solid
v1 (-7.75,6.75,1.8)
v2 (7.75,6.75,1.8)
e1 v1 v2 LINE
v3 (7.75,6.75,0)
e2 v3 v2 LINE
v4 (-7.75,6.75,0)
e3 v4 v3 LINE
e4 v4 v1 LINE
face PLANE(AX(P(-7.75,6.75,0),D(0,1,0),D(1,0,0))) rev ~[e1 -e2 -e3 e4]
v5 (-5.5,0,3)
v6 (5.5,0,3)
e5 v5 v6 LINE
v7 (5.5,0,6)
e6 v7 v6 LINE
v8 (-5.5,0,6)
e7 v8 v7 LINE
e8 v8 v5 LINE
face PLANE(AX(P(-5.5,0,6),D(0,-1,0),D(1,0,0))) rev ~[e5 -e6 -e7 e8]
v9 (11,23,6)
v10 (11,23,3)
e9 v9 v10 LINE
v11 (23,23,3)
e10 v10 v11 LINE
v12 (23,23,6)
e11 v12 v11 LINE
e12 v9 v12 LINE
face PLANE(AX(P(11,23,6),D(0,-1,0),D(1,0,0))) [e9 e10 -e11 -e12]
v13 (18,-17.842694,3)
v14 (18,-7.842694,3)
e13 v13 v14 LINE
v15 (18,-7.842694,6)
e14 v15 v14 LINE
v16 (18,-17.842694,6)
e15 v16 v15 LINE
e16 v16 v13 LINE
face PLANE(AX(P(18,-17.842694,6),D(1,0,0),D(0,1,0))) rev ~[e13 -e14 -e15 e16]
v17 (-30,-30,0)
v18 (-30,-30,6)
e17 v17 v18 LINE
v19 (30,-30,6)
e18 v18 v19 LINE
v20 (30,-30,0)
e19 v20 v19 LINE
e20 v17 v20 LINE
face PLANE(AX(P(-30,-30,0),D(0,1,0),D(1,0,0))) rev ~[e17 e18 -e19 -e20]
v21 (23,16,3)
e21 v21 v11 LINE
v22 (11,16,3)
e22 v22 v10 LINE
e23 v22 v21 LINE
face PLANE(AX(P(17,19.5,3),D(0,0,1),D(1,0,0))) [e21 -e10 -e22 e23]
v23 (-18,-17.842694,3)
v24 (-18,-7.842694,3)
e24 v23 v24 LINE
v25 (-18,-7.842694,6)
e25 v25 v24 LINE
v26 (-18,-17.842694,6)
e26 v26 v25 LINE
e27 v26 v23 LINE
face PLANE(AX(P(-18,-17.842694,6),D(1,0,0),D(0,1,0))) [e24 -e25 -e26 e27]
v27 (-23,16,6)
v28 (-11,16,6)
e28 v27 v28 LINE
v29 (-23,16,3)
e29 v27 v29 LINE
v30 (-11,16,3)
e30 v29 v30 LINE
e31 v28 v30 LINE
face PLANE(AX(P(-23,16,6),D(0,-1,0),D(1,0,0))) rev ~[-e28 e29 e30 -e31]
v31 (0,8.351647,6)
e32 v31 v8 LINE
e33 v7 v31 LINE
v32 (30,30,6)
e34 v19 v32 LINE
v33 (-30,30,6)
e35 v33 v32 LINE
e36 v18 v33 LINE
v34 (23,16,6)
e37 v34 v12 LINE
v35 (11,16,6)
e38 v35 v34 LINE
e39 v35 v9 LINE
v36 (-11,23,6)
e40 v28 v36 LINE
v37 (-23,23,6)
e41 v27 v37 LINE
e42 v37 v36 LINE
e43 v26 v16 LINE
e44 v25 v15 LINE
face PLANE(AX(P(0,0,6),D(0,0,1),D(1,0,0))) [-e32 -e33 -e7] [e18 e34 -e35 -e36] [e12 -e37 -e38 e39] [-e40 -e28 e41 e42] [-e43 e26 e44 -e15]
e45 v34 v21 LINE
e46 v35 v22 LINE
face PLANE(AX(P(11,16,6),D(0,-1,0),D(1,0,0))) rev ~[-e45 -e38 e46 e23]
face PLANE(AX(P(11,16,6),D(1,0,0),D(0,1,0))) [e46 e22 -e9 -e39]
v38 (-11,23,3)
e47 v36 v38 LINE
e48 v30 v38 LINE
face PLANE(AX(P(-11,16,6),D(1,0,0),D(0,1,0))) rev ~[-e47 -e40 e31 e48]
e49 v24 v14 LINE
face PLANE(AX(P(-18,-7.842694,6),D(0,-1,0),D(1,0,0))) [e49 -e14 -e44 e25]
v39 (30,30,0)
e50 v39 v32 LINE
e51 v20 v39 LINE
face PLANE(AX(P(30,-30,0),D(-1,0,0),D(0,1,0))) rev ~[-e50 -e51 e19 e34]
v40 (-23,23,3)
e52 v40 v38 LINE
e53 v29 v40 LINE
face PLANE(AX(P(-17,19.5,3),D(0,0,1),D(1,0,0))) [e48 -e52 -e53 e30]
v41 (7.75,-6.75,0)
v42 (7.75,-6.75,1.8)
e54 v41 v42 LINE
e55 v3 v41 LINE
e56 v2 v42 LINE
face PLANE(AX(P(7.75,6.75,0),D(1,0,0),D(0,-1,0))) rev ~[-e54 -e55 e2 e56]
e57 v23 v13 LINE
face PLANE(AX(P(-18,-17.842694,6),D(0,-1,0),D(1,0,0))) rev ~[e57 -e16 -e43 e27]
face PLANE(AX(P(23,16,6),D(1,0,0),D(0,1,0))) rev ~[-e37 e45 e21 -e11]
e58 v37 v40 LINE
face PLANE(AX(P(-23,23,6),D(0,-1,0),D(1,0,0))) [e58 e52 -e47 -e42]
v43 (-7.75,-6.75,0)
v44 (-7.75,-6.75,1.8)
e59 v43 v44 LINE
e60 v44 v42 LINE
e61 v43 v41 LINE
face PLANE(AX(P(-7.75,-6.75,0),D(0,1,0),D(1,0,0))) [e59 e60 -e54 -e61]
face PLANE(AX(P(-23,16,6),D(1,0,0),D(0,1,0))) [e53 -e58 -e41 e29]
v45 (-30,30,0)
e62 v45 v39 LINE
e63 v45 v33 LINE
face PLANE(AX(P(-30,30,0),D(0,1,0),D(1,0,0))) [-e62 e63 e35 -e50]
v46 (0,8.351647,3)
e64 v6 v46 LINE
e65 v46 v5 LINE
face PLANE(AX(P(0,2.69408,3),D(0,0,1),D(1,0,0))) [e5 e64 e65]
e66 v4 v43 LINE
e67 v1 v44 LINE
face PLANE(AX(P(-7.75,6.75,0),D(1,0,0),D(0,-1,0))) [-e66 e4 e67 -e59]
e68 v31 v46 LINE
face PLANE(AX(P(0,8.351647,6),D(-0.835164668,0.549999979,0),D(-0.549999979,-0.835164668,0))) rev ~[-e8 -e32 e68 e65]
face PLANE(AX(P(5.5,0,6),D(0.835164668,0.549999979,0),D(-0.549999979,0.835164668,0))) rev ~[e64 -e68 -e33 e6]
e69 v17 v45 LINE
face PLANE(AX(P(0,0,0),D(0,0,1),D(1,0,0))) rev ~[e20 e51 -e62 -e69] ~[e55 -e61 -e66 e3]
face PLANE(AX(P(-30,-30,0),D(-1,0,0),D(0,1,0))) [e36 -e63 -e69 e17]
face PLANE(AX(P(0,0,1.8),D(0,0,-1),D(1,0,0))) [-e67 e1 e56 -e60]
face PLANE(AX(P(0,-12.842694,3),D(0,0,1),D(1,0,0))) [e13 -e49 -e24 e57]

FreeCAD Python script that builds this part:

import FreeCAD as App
import Part
import Sketcher

doc = App.newDocument("Part")
params = doc.addObject("Spreadsheet::Sheet", "Params")
for row, (alias, value) in enumerate([
    ("sketch1_width", "60 mm"),
    ("pad1_length", "6 mm"),
    ("sketch2_width", "12 mm"),
    ("sketch2_width2", "36 mm"),
    ("sketch2_width3", "11 mm"),
    ("sketch2_height", "7 mm"),
    ("sketch2_height2", "10 mm"),
    ("pocket1_length", "3 mm"),
    ("sketch3_width", "15.5 mm"),
    ("sketch3_height", "13.5 mm"),
    ("pocket2_length", "1.8 mm"),
], start=1):
    params.set(f"A{row}", alias)
    params.set(f"B{row}", "=" + value)
    params.setAlias(f"B{row}", alias)

body = doc.addObject("PartDesign::Body", "Body")

sketch1 = body.newObject("Sketcher::SketchObject", "Sketch")
sketch1.AttachmentSupport = (doc.getObject("XY_Plane"), [""])
sketch1.MapMode = "FlatFace"
sketch1.addGeometry([
    Part.LineSegment(App.Vector(-30, 30, 0), App.Vector(-30, -30, 0)),
    Part.LineSegment(App.Vector(-30, -30, 0), App.Vector(30, -30, 0)),
    Part.LineSegment(App.Vector(30, -30, 0), App.Vector(30, 30, 0)),
    Part.LineSegment(App.Vector(30, 30, 0), App.Vector(-30, 30, 0)),
], False)
sketch1.addConstraint([
    Sketcher.Constraint("Coincident", 0, 2, 1, 1),
    Sketcher.Constraint("Coincident", 1, 2, 2, 1),
    Sketcher.Constraint("Coincident", 2, 2, 3, 1),
    Sketcher.Constraint("Coincident", 3, 2, 0, 1),
    Sketcher.Constraint("Vertical", 0),
    Sketcher.Constraint("Horizontal", 1),
    Sketcher.Constraint("Vertical", 2),
    Sketcher.Constraint("Horizontal", 3),
    Sketcher.Constraint("Symmetric", 0, 2, 2, 2, -1, 1),
    Sketcher.Constraint("Equal", 3, 0),
    Sketcher.Constraint("DistanceX", 1, 1, 1, 2, 60.0),
])
sketch1.setExpression("Constraints[10]", "Params.sketch1_width")
pad1 = body.newObject("PartDesign::Pad", "Pad")
pad1.Profile = sketch1
pad1.setExpression("Length", "Params.pad1_length")

sketch2 = body.newObject("Sketcher::SketchObject", "Sketch001")
sketch2.AttachmentSupport = (doc.getObject("XY_Plane"), [""])
sketch2.MapMode = "FlatFace"
sketch2.AttachmentOffset = App.Placement(App.Vector(0, 0, 6), App.Rotation())
sketch2.addGeometry([
    Part.LineSegment(App.Vector(-23, 23, 0), App.Vector(-23, 16, 0)),
    Part.LineSegment(App.Vector(-23, 16, 0), App.Vector(-11, 16, 0)),
    Part.LineSegment(App.Vector(-11, 16, 0), App.Vector(-11, 23, 0)),
    Part.LineSegment(App.Vector(-11, 23, 0), App.Vector(-23, 23, 0)),
    Part.LineSegment(App.Vector(11, 23, 0), App.Vector(11, 16, 0)),
    Part.LineSegment(App.Vector(11, 16, 0), App.Vector(23, 16, 0)),
    Part.LineSegment(App.Vector(23, 16, 0), App.Vector(23, 23, 0)),
    Part.LineSegment(App.Vector(23, 23, 0), App.Vector(11, 23, 0)),
    Part.LineSegment(App.Vector(-18, -7.842694, 0), App.Vector(-18, -17.842694, 0)),
    Part.LineSegment(App.Vector(-18, -17.842694, 0), App.Vector(18, -17.842694, 0)),
    Part.LineSegment(App.Vector(18, -17.842694, 0), App.Vector(18, -7.842694, 0)),
    Part.LineSegment(App.Vector(18, -7.842694, 0), App.Vector(-18, -7.842694, 0)),
    Part.LineSegment(App.Vector(5.5, 0, 0), App.Vector(0, 8.351647, 0)),
    Part.LineSegment(App.Vector(0, 8.351647, 0), App.Vector(-5.5, 0, 0)),
    Part.LineSegment(App.Vector(-5.5, 0, 0), App.Vector(5.5, 0, 0)),
], False)
sketch2.addConstraint([
    Sketcher.Constraint("Coincident", 0, 2, 1, 1),
    Sketcher.Constraint("Coincident", 1, 2, 2, 1),
    Sketcher.Constraint("Coincident", 2, 2, 3, 1),
    Sketcher.Constraint("Coincident", 3, 2, 0, 1),
    Sketcher.Constraint("Coincident", 4, 2, 5, 1),
    Sketcher.Constraint("Coincident", 5, 2, 6, 1),
    Sketcher.Constraint("Coincident", 6, 2, 7, 1),
    Sketcher.Constraint("Coincident", 7, 2, 4, 1),
    Sketcher.Constraint("Coincident", 8, 2, 9, 1),
    Sketcher.Constraint("Coincident", 9, 2, 10, 1),
    Sketcher.Constraint("Coincident", 10, 2, 11, 1),
    Sketcher.Constraint("Coincident", 11, 2, 8, 1),
    Sketcher.Constraint("Coincident", 12, 2, 13, 1),
    Sketcher.Constraint("Coincident", 13, 2, 14, 1),
    Sketcher.Constraint("Coincident", 14, 2, 12, 1),
    Sketcher.Constraint("Vertical", 0),
    Sketcher.Constraint("Horizontal", 1),
    Sketcher.Constraint("Vertical", 2),
    Sketcher.Constraint("Horizontal", 3),
    Sketcher.Constraint("Vertical", 4),
    Sketcher.Constraint("Horizontal", 5),
    Sketcher.Constraint("Vertical", 6),
    Sketcher.Constraint("Horizontal", 7),
    Sketcher.Constraint("Vertical", 8),
    Sketcher.Constraint("Horizontal", 9),
    Sketcher.Constraint("Vertical", 10),
    Sketcher.Constraint("Horizontal", 11),
    Sketcher.Constraint("Horizontal", 14),
    Sketcher.Constraint("Symmetric", 13, 2, 14, 2, -1, 1),
    Sketcher.Constraint("Symmetric", 1, 2, 4, 2, -2),
    Sketcher.Constraint("Symmetric", 3, 2, 6, 2, -2),
    Sketcher.Constraint("PointOnObject", 12, 2, -2),
    Sketcher.Constraint("DistanceX", 1, 1, 1, 2, 12.0),
    Sketcher.Constraint("DistanceX", 9, 1, 9, 2, 36.0),
    Sketcher.Constraint("DistanceX", 14, 1, 14, 2, 11.0),
    Sketcher.Constraint("DistanceY", 0, 2, 0, 1, 7.0),
    Sketcher.Constraint("DistanceY", 8, 2, 8, 1, 10.0),
    Sketcher.Constraint("Distance", 12, 10.0),
    Sketcher.Constraint("DistanceX", 0, 2, -1, 1, 23.0),
    Sketcher.Constraint("DistanceY", -1, 1, 0, 2, 16.0),
    Sketcher.Constraint("DistanceX", 8, 2, -1, 1, 18.0),
    Sketcher.Constraint("DistanceY", 10, 2, 12, 2, 16.194341),
])
sketch2.setExpression("Constraints[32]", "Params.sketch2_width")
sketch2.setExpression("Constraints[33]", "Params.sketch2_width2")
sketch2.setExpression("Constraints[34]", "Params.sketch2_width3")
sketch2.setExpression("Constraints[35]", "Params.sketch2_height")
sketch2.setExpression("Constraints[36]", "Params.sketch2_height2")
pocket1 = body.newObject("PartDesign::Pocket", "Pocket")
pocket1.Profile = sketch2
pocket1.setExpression("Length", "Params.pocket1_length")

sketch3 = body.newObject("Sketcher::SketchObject", "Sketch002")
sketch3.AttachmentSupport = (doc.getObject("XY_Plane"), [""])
sketch3.MapMode = "FlatFace"
sketch3.addGeometry([
    Part.LineSegment(App.Vector(-7.75, -6.75, 0), App.Vector(-7.75, 6.75, 0)),
    Part.LineSegment(App.Vector(-7.75, 6.75, 0), App.Vector(7.75, 6.75, 0)),
    Part.LineSegment(App.Vector(7.75, 6.75, 0), App.Vector(7.75, -6.75, 0)),
    Part.LineSegment(App.Vector(7.75, -6.75, 0), App.Vector(-7.75, -6.75, 0)),
], False)
sketch3.addConstraint([
    Sketcher.Constraint("Coincident", 0, 2, 1, 1),
    Sketcher.Constraint("Coincident", 1, 2, 2, 1),
    Sketcher.Constraint("Coincident", 2, 2, 3, 1),
    Sketcher.Constraint("Coincident", 3, 2, 0, 1),
    Sketcher.Constraint("Vertical", 0),
    Sketcher.Constraint("Horizontal", 1),
    Sketcher.Constraint("Vertical", 2),
    Sketcher.Constraint("Horizontal", 3),
    Sketcher.Constraint("Symmetric", 0, 2, 2, 2, -1, 1),
    Sketcher.Constraint("DistanceX", 1, 1, 1, 2, 15.5),
    Sketcher.Constraint("DistanceY", 0, 1, 0, 2, 13.5),
])
sketch3.setExpression("Constraints[9]", "Params.sketch3_width")
sketch3.setExpression("Constraints[10]", "Params.sketch3_height")
pocket2 = body.newObject("PartDesign::Pocket", "Pocket001")
pocket2.Profile = sketch3
pocket2.setExpression("Length", "Params.pocket2_length")
pocket2.Reversed = True

doc.recompute()
